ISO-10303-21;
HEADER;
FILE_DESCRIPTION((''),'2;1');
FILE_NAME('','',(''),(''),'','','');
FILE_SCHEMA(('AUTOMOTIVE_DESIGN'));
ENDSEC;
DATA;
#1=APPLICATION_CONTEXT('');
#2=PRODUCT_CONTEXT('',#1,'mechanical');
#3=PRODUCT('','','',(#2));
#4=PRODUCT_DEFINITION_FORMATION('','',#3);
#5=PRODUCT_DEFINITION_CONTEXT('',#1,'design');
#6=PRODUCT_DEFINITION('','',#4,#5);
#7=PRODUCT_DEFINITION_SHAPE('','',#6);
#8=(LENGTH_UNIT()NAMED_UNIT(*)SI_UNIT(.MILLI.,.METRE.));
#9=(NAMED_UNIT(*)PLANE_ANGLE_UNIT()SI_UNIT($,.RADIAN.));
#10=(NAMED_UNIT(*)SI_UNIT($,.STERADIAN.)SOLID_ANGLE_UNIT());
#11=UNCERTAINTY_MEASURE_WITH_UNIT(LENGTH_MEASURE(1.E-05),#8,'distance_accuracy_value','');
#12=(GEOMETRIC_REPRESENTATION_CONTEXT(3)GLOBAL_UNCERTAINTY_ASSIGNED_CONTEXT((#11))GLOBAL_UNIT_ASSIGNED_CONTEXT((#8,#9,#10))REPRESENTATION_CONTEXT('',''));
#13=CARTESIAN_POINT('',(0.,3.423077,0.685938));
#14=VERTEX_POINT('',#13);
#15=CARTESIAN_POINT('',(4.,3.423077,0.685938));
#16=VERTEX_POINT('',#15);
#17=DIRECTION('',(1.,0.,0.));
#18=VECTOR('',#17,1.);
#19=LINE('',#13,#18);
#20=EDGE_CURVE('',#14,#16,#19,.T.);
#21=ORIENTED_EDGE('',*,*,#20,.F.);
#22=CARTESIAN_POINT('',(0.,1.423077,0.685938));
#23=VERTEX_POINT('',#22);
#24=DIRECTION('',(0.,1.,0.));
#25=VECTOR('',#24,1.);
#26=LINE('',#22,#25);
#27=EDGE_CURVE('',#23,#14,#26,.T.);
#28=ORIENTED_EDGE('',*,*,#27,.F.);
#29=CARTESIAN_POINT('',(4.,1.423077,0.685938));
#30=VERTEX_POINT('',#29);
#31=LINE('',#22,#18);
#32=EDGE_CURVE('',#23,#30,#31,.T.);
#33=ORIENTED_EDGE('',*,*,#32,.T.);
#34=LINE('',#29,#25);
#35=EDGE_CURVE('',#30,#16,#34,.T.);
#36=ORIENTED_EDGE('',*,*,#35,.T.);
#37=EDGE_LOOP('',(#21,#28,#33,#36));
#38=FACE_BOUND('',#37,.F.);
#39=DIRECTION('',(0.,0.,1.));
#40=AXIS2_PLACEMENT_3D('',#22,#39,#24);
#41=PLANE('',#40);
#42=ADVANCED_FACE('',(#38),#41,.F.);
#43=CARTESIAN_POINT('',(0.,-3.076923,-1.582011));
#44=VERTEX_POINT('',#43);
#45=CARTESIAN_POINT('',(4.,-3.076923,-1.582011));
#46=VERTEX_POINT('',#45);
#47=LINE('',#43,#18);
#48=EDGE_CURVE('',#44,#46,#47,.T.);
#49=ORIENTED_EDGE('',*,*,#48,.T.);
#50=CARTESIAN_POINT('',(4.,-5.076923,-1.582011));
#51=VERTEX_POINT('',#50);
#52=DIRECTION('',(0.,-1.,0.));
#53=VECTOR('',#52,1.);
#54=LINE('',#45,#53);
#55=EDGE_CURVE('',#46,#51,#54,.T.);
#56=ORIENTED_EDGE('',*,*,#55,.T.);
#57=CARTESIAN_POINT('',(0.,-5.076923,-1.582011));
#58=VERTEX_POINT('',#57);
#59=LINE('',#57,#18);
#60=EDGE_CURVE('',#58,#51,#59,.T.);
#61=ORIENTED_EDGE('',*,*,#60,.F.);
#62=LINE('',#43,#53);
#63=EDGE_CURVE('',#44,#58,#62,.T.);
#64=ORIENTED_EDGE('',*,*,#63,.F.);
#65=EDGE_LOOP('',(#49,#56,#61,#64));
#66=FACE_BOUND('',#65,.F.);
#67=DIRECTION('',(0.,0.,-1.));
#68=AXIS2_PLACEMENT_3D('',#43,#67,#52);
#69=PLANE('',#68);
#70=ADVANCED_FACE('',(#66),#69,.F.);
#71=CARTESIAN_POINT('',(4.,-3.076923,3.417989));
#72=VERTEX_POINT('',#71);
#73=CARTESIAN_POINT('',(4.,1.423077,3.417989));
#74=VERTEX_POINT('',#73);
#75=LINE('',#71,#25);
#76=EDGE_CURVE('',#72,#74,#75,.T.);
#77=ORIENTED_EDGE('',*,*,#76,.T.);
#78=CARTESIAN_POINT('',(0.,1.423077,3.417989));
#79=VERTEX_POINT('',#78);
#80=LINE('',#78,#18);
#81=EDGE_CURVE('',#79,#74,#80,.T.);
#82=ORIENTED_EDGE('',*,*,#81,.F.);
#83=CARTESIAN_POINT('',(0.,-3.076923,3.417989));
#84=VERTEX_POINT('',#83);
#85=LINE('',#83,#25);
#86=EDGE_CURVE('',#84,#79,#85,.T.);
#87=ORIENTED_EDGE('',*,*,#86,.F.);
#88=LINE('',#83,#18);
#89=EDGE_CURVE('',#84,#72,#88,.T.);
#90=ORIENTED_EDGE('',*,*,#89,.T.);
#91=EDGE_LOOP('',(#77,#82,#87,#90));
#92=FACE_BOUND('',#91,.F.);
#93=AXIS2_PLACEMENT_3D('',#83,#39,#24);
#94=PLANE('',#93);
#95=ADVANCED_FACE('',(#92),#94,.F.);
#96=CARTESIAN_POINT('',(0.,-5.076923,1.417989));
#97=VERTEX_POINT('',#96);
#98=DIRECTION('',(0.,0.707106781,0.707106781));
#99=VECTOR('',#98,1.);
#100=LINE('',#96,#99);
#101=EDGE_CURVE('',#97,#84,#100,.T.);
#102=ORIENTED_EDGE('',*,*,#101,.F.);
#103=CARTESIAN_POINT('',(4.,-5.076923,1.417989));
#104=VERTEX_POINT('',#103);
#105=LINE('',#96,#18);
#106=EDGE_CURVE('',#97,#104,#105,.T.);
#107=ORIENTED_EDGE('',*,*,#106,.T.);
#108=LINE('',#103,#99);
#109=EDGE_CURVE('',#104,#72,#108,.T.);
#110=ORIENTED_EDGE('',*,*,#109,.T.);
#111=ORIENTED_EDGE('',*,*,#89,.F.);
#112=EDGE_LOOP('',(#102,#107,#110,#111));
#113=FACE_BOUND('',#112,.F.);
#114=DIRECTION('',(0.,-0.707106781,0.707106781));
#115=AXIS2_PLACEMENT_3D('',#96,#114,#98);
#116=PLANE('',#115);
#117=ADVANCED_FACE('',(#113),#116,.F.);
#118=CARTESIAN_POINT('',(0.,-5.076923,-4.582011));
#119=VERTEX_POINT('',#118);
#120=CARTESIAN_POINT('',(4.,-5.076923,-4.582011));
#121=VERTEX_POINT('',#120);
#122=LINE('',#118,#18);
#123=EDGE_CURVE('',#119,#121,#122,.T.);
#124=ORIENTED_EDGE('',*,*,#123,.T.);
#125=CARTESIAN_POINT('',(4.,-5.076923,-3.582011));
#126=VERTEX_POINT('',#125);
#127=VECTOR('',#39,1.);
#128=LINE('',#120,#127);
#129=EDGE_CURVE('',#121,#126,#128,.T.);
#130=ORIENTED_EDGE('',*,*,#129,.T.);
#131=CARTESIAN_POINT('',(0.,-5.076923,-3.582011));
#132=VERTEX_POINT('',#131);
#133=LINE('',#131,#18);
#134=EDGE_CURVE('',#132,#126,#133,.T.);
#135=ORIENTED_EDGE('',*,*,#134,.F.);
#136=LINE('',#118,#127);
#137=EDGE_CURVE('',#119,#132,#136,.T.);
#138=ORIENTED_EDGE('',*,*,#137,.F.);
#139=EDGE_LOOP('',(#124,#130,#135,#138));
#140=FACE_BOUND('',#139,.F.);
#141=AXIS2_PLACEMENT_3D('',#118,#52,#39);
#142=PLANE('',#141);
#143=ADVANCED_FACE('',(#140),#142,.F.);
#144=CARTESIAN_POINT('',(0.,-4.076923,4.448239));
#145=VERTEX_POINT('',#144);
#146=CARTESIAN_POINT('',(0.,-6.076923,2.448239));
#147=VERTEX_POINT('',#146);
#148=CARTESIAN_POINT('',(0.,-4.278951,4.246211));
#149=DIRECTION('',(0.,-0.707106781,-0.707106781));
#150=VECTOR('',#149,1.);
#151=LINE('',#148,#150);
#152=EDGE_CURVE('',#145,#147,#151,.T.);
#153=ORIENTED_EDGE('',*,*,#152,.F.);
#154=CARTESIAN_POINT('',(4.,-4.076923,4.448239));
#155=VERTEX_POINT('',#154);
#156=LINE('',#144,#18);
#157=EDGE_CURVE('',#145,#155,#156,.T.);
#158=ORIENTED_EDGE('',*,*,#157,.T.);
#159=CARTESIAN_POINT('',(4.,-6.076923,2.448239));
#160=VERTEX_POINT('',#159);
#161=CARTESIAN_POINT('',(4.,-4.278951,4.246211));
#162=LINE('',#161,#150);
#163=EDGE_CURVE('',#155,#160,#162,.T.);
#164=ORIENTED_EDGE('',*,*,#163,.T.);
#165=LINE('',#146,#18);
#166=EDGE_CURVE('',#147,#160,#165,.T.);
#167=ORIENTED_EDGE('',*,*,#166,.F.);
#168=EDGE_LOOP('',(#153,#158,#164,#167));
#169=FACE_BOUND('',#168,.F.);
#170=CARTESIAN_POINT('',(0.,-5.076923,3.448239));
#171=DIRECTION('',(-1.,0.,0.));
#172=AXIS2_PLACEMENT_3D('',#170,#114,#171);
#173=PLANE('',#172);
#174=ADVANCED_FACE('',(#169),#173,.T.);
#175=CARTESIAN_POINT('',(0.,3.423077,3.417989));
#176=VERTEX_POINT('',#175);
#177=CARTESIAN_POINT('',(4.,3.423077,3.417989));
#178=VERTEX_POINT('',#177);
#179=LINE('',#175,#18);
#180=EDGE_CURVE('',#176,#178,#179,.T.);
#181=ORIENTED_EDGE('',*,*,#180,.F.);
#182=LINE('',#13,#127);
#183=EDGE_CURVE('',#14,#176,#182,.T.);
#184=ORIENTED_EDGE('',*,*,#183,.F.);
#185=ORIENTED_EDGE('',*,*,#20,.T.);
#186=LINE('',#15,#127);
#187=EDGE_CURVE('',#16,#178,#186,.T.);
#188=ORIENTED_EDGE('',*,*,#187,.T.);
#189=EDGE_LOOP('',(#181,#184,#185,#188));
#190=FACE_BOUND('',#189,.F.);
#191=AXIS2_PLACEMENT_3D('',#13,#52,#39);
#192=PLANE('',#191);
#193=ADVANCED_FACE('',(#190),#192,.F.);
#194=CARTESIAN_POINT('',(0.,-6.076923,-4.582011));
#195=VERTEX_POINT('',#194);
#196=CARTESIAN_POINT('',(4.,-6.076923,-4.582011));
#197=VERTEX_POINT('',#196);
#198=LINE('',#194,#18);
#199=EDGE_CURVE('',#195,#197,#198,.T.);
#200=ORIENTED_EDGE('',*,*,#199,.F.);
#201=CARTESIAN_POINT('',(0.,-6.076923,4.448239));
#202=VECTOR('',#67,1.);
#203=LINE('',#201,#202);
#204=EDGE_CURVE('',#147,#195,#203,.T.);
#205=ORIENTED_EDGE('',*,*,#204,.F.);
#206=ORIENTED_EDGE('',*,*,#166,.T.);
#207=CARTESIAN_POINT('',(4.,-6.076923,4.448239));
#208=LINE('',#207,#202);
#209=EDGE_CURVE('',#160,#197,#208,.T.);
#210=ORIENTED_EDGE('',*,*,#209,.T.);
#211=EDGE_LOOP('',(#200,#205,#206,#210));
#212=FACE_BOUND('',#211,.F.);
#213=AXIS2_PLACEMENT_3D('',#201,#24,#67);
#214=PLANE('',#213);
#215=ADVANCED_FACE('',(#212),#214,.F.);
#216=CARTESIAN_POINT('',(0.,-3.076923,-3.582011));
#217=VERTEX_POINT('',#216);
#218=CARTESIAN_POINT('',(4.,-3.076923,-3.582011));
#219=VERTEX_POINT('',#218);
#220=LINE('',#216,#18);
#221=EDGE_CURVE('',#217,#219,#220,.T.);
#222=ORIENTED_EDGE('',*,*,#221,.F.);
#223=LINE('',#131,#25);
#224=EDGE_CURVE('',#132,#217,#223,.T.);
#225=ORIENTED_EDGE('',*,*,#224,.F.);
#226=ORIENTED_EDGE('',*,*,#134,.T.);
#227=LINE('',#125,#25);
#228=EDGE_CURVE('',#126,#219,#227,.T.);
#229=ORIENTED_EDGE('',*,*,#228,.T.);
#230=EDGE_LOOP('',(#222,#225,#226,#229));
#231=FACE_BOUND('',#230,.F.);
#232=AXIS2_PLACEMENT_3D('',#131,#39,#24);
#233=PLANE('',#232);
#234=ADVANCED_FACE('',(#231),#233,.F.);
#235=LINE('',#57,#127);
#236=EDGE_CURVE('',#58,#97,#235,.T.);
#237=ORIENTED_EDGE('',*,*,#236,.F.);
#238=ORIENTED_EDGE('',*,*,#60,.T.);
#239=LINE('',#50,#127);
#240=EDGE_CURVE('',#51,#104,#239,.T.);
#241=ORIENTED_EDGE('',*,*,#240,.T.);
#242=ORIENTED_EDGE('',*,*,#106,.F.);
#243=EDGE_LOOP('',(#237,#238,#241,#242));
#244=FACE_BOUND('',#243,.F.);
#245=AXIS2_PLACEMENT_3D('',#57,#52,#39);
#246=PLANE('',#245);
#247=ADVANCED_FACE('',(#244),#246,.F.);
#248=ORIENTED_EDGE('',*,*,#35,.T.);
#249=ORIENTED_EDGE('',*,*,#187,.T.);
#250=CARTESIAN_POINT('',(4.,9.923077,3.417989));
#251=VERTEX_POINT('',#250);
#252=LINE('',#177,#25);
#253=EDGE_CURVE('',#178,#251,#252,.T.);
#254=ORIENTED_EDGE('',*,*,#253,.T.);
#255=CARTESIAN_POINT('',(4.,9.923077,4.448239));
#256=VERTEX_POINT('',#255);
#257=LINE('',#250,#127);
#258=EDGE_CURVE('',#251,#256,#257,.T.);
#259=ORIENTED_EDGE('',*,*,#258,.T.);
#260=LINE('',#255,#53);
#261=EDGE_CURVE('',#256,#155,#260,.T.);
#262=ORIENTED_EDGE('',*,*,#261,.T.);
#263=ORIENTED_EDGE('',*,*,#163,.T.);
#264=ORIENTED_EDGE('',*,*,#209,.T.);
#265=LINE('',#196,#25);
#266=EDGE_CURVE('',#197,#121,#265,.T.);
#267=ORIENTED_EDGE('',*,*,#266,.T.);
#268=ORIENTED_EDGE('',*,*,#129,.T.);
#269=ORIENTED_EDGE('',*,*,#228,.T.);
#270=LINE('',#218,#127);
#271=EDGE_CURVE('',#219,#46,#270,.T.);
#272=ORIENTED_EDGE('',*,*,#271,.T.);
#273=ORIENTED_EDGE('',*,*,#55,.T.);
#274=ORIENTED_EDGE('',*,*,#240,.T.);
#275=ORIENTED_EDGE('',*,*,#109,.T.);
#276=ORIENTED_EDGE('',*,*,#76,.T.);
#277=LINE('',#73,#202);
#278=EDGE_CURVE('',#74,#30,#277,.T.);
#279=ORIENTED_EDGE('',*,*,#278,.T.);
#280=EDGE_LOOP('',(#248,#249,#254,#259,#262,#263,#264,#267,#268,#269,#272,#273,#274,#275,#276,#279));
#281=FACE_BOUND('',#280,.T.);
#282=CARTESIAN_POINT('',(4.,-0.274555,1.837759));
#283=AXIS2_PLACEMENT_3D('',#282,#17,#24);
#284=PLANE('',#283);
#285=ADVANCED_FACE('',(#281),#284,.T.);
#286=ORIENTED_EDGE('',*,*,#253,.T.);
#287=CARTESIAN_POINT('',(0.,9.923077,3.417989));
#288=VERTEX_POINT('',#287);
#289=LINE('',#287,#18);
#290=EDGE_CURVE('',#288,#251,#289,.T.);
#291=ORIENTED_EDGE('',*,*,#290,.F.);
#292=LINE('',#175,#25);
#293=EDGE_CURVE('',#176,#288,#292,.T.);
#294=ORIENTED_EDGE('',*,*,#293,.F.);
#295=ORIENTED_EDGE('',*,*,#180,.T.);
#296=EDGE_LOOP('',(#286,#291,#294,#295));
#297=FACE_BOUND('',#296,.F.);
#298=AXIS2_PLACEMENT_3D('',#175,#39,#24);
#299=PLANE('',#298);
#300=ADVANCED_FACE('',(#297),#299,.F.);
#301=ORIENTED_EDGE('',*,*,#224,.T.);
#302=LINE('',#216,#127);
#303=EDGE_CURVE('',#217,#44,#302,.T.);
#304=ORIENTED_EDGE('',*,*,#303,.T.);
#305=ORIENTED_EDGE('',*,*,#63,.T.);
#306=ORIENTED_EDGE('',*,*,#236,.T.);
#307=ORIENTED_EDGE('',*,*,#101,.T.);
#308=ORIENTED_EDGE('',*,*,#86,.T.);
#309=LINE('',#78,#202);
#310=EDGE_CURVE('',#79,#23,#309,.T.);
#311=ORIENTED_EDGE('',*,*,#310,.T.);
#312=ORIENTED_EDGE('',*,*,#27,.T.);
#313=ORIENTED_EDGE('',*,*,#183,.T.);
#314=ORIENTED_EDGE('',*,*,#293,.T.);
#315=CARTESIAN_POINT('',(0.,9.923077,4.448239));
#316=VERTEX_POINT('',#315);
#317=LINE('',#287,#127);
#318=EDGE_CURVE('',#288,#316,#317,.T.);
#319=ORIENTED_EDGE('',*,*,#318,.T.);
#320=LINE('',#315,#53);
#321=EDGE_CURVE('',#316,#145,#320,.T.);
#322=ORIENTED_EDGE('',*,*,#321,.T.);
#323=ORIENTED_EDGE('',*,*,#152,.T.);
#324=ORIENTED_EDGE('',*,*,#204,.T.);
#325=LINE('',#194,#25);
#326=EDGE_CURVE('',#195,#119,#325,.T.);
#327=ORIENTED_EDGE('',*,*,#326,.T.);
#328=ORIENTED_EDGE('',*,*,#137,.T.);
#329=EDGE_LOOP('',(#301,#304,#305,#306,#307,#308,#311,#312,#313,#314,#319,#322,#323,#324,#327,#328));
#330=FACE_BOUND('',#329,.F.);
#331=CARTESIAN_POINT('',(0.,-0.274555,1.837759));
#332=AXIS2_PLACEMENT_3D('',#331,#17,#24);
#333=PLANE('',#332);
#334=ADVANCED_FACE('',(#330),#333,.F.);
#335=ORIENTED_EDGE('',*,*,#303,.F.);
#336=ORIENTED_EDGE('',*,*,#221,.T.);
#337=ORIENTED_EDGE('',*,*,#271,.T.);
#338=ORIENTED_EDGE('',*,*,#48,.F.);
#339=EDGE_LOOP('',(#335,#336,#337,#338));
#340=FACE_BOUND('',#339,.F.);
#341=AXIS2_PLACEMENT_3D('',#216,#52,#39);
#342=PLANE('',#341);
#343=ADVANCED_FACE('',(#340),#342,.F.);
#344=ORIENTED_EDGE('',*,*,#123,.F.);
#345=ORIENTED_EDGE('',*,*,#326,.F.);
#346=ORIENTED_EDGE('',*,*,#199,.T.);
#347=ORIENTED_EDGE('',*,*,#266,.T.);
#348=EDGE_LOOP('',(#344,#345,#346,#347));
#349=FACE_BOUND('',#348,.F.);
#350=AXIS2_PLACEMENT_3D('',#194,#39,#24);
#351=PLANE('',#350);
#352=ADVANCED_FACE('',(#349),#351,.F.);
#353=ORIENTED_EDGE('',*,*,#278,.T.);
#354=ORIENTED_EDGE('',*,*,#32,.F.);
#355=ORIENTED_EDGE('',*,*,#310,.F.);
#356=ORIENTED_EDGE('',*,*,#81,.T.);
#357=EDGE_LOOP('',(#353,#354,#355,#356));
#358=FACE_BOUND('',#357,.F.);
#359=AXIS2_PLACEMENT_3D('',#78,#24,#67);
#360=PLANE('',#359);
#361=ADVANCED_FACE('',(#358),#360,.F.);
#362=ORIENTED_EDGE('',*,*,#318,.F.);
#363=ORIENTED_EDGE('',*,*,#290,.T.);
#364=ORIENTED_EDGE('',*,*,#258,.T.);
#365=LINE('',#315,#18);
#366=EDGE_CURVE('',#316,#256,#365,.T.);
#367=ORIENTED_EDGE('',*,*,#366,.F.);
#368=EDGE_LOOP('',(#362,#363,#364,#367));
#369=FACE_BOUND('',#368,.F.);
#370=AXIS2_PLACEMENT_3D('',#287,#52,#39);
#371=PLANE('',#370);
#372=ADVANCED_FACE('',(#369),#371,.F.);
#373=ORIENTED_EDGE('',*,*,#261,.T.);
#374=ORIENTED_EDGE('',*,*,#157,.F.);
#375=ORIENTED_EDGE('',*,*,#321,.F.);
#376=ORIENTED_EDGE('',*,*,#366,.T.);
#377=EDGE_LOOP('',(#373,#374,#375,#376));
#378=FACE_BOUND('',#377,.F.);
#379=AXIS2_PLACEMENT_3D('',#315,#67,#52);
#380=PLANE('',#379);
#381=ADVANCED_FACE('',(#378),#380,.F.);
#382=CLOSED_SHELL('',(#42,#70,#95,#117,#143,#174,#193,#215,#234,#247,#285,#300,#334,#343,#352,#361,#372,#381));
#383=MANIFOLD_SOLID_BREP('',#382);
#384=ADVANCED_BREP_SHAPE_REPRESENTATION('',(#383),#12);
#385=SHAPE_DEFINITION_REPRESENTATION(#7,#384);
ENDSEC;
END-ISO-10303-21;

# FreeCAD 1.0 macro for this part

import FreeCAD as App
import Part
import Sketcher
from FreeCAD import Vector
Q = App.Units.Quantity


def edges_at(feature, points):
    """Names of the edges that pass closest to the given points."""
    edges = feature.Shape.Edges
    near = lambda p: min(range(len(edges)), key=lambda i: edges[i].distToShape(Part.Vertex(*p))[0])
    return sorted({f"Edge{near(p) + 1}" for p in points})


def add_polygon(sketch, points):
    """Adds a closed chain of lines whose ends are joined by coincident constraints."""
    first, n = sketch.GeometryCount, len(points)
    for a, b in zip(points, points[1:] + points[:1]):
        sketch.addGeometry(Part.LineSegment(App.Vector(*a, 0), App.Vector(*b, 0)), False)
    for i in range(n):
        sketch.addConstraint(Sketcher.Constraint("Coincident", first + i, 2, first + (i + 1) % n, 1))

doc = App.newDocument("Part")
body = doc.addObject("PartDesign::Body", "Body")

# Sketch on YZ plane
sketch1 = doc.addObject("Sketcher::SketchObject", "Sketch")
body.addObject(sketch1)
sketch1.AttachmentSupport = (doc.YZ_Plane, [""])
sketch1.MapMode = "FlatFace"
add_polygon(sketch1, [(3.4, 3.4), (9.9, 3.4), (9.9, 4.4), (-6.1, 4.4), (-6.1, -4.6), (-5.1, -4.6), (-5.1, -3.6), (-3.1, -3.6), (-3.1, -1.6), (-5.1, -1.6), (-5.1, 1.4), (-3.1, 3.4), (1.4, 3.4), (1.4, 0.7), (3.4, 0.7)])  # lines 0-14
sketch1.addConstraint(Sketcher.Constraint("Horizontal", 0))
sketch1.addConstraint(Sketcher.Constraint("Vertical", 1))
sketch1.addConstraint(Sketcher.Constraint("Horizontal", 2))
sketch1.addConstraint(Sketcher.Constraint("Vertical", 3))
sketch1.addConstraint(Sketcher.Constraint("Horizontal", 4))
sketch1.addConstraint(Sketcher.Constraint("Vertical", 5))
sketch1.addConstraint(Sketcher.Constraint("Horizontal", 6))
sketch1.addConstraint(Sketcher.Constraint("Vertical", 7))
sketch1.addConstraint(Sketcher.Constraint("Horizontal", 8))
sketch1.addConstraint(Sketcher.Constraint("Vertical", 9))
sketch1.addConstraint(Sketcher.Constraint("Horizontal", 11))
sketch1.addConstraint(Sketcher.Constraint("Vertical", 12))
sketch1.addConstraint(Sketcher.Constraint("Horizontal", 13))
sketch1.addConstraint(Sketcher.Constraint("Vertical", 14))
sketch1.addConstraint(Sketcher.Constraint("Horizontal", 0, 2, 10, 2))
sketch1.addConstraint(Sketcher.Constraint("Vertical", 5, 2, 8, 2))
sketch1.addConstraint(Sketcher.Constraint("Vertical", 7, 2, 10, 2))
sketch1.addConstraint(Sketcher.Constraint("Equal", 8, 13))
sketch1.addConstraint(Sketcher.Constraint("Equal", 4, 5))
sketch1.addConstraint(Sketcher.Constraint("Equal", 13, 7))
sketch1.addConstraint(Sketcher.Constraint("DistanceX", 2, 2, 2, 1, 16.0))
sketch1.addConstraint(Sketcher.Constraint("DistanceX", 4, 1, 4, 2, 1.0))
sketch1.addConstraint(Sketcher.Constraint("DistanceX", 6, 1, 6, 2, 2.0))
sketch1.addConstraint(Sketcher.Constraint("DistanceY", 9, 1, 9, 2, 3.0))
sketch1.addConstraint(Sketcher.Constraint("Angle", 10, Q("45 deg")))
sketch1.addConstraint(Sketcher.Constraint("DistanceX", 0, 1, 0, 2, 6.5))
sketch1.addConstraint(Sketcher.Constraint("DistanceY", 1, 1, 1, 2, 1.03025))
sketch1.addConstraint(Sketcher.Constraint("DistanceY", 12, 2, 12, 1, 2.732051))
sketch1.addConstraint(Sketcher.Constraint("DistanceY", -1, 1, 0, 2, 3.417989))
sketch1.addConstraint(Sketcher.Constraint("DistanceX", -1, 1, 0, 2, 9.923077))
pad1 = doc.addObject("PartDesign::Pad", "Pad")
body.addObject(pad1)
pad1.Profile = sketch1
pad1.Length = 4
doc.recompute()

chamfer = doc.addObject("PartDesign::Chamfer", "Chamfer")
body.addObject(chamfer)
chamfer.Base = (pad1, edges_at(pad1, [(2, -6.077, 4.448)]))
chamfer.Size = 2

doc.recompute()
